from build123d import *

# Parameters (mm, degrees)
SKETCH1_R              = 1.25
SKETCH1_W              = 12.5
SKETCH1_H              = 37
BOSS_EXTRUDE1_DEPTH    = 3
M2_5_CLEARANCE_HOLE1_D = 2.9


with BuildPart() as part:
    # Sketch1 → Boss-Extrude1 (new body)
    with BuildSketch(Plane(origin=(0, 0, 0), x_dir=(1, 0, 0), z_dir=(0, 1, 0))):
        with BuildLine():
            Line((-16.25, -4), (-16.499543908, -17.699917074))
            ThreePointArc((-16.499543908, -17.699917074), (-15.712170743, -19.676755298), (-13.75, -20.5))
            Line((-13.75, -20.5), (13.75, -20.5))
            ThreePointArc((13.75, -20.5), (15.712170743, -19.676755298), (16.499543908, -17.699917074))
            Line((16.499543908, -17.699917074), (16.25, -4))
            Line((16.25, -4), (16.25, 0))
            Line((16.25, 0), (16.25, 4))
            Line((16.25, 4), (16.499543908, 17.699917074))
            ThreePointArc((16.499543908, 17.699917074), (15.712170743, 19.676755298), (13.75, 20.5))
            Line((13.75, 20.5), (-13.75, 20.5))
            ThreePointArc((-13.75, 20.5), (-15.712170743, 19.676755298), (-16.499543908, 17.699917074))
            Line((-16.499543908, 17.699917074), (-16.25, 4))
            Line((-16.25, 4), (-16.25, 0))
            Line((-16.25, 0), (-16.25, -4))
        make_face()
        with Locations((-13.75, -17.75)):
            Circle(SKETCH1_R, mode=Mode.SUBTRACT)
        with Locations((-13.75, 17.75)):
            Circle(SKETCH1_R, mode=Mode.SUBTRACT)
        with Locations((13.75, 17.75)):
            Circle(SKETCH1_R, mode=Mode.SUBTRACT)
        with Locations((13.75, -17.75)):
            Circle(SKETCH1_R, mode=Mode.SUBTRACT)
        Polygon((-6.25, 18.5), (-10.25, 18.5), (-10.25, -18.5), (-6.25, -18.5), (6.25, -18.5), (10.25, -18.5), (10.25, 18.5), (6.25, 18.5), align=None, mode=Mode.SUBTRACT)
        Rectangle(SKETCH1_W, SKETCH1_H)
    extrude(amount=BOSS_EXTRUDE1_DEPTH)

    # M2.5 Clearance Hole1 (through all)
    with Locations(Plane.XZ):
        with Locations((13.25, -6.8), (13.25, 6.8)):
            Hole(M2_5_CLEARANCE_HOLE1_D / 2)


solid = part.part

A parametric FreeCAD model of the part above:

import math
import FreeCAD as App
import Part
import Sketcher
Q = App.Units.Quantity


def add_polygon(sketch, points):
    """Adds a closed chain of lines whose ends are joined by coincident constraints."""
    first, n = sketch.GeometryCount, len(points)
    for a, b in zip(points, points[1:] + points[:1]):
        sketch.addGeometry(Part.LineSegment(App.Vector(*a, 0), App.Vector(*b, 0)), False)
    for i in range(n):
        sketch.addConstraint(Sketcher.Constraint("Coincident", first + i, 2, first + (i + 1) % n, 1))

doc = App.newDocument("Part")
body = doc.addObject("PartDesign::Body", "Body")

# Sketch on XZ plane
sketch1 = body.newObject("Sketcher::SketchObject", "Sketch")
sketch1.AttachmentSupport = (doc.getObject("XZ_Plane"), [""])
sketch1.MapMode = "FlatFace"
sketch1.addGeometry(Part.LineSegment(App.Vector(-16.2, 4, 0), App.Vector(-16.5, 17.7, 0)), False)  # 0
sketch1.addGeometry(Part.ArcOfCircle(Part.Circle(App.Vector(-13.8, 17.8, 0), App.Vector(0, 0, 1), 2.7), math.radians(90), math.radians(181)), False)  # 1
sketch1.addGeometry(Part.LineSegment(App.Vector(-13.8, 20.5, 0), App.Vector(13.8, 20.5, 0)), False)  # 2
sketch1.addGeometry(Part.ArcOfCircle(Part.Circle(App.Vector(13.8, 17.8, 0), App.Vector(0, 0, 1), 2.7), math.radians(-1), math.radians(90)), False)  # 3
sketch1.addGeometry(Part.LineSegment(App.Vector(16.5, 17.7, 0), App.Vector(16.2, 4, 0)), False)  # 4
sketch1.addGeometry(Part.LineSegment(App.Vector(16.2, 4, 0), App.Vector(16.2, -4, 0)), False)  # 5
sketch1.addGeometry(Part.LineSegment(App.Vector(16.2, -4, 0), App.Vector(16.5, -17.7, 0)), False)  # 6
sketch1.addGeometry(Part.ArcOfCircle(Part.Circle(App.Vector(13.8, -17.8, 0), App.Vector(0, 0, 1), 2.7), math.radians(-90), math.radians(1)), False)  # 7
sketch1.addGeometry(Part.LineSegment(App.Vector(13.8, -20.5, 0), App.Vector(-13.8, -20.5, 0)), False)  # 8
sketch1.addGeometry(Part.ArcOfCircle(Part.Circle(App.Vector(-13.8, -17.8, 0), App.Vector(0, 0, 1), 2.7), math.radians(179), math.radians(270)), False)  # 9
sketch1.addGeometry(Part.LineSegment(App.Vector(-16.5, -17.7, 0), App.Vector(-16.2, -4, 0)), False)  # 10
sketch1.addGeometry(Part.LineSegment(App.Vector(-16.2, -4, 0), App.Vector(-16.2, 4, 0)), False)  # 11
sketch1.addGeometry(Part.Circle(App.Vector(-13.8, 17.8, 0), App.Vector(0, 0, 1), 1.2), False)  # 12
sketch1.addGeometry(Part.Circle(App.Vector(13.8, 17.8, 0), App.Vector(0, 0, 1), 1.2), False)  # 13
sketch1.addGeometry(Part.Circle(App.Vector(-13.8, -17.8, 0), App.Vector(0, 0, 1), 1.2), False)  # 14
add_polygon(sketch1, [(-10.2, -18.5), (-6.2, -18.5), (-6.2, 18.5), (-10.2, 18.5)])  # lines 15-18
add_polygon(sketch1, [(6.2, -18.5), (10.2, -18.5), (10.2, 18.5), (6.2, 18.5)])  # lines 19-22
sketch1.addGeometry(Part.Circle(App.Vector(13.8, -17.8, 0), App.Vector(0, 0, 1), 1.2), False)  # 23
sketch1.addConstraint([
    Sketcher.Constraint("Tangent", 0, 2, 1, 2),
    Sketcher.Constraint("Tangent", 1, 1, 2, 1),
    Sketcher.Constraint("Tangent", 2, 2, 3, 2),
    Sketcher.Constraint("Tangent", 3, 1, 4, 1),
    Sketcher.Constraint("Coincident", 4, 2, 5, 1),
    Sketcher.Constraint("Coincident", 5, 2, 6, 1),
    Sketcher.Constraint("Tangent", 6, 2, 7, 2),
    Sketcher.Constraint("Tangent", 7, 1, 8, 1),
    Sketcher.Constraint("Tangent", 8, 2, 9, 2),
    Sketcher.Constraint("Tangent", 9, 1, 10, 1),
    Sketcher.Constraint("Coincident", 10, 2, 11, 1),
    Sketcher.Constraint("Coincident", 11, 2, 0, 1),
    Sketcher.Constraint("Horizontal", 2),
    Sketcher.Constraint("Vertical", 5),
    Sketcher.Constraint("Horizontal", 8),
    Sketcher.Constraint("Vertical", 11),
    Sketcher.Constraint("Horizontal", 15),
    Sketcher.Constraint("Vertical", 16),
    Sketcher.Constraint("Horizontal", 17),
    Sketcher.Constraint("Vertical", 18),
    Sketcher.Constraint("Horizontal", 19),
    Sketcher.Constraint("Vertical", 20),
    Sketcher.Constraint("Horizontal", 21),
    Sketcher.Constraint("Vertical", 22),
    Sketcher.Constraint("Coincident", 12, 3, 1, 3),
    Sketcher.Constraint("Coincident", 13, 3, 3, 3),
    Sketcher.Constraint("Coincident", 14, 3, 9, 3),
    Sketcher.Constraint("Coincident", 23, 3, 7, 3),
    Sketcher.Constraint("Equal", 1, 3),
    Sketcher.Constraint("Equal", 3, 7),
    Sketcher.Constraint("Equal", 7, 9),
    Sketcher.Constraint("Equal", 12, 13),
    Sketcher.Constraint("Equal", 13, 14),
    Sketcher.Constraint("Equal", 14, 23),
    Sketcher.Constraint("Symmetric", 1, 3, 7, 3, -1, 1),
    Sketcher.Constraint("Symmetric", 3, 1, 9, 1, -1, 1),
    Sketcher.Constraint("Symmetric", 5, 2, 11, 2, -1, 1),
    Sketcher.Constraint("Symmetric", 17, 2, 19, 2, -1, 1),
    Sketcher.Constraint("Symmetric", 15, 2, 21, 2, -1, 1),
    Sketcher.Constraint("Horizontal", 0, 2, 3, 1),
    Sketcher.Constraint("Horizontal", 5, 2, 10, 2),
    Sketcher.Constraint("Horizontal", 18, 2, 19, 2),
    Sketcher.Constraint("Diameter", 12, Q("2.5 mm")),
    Sketcher.Constraint("DistanceX", 15, 1, 15, 2, Q("4 mm")),
    Sketcher.Constraint("DistanceY", 5, 2, 5, 1, Q("8 mm")),
    Sketcher.Constraint("DistanceY", 16, 1, 16, 2, Q("37 mm")),
    Sketcher.Constraint("Radius", 1, Q("2.75 mm")),
    Sketcher.Constraint("DistanceX", 2, 1, 2, 2, Q("27.5 mm")),
    Sketcher.Constraint("DistanceY", 8, 2, 15, 2, Q("2 mm")),
    Sketcher.Constraint("DistanceX", 10, 2, 15, 2, Q("10 mm")),
    Sketcher.Constraint("DistanceX", 13, 3, 4, 2, Q("2.5 mm")),
])
pad1 = body.newObject("PartDesign::Pad", "Pad")
pad1.Profile = sketch1
pad1.Length = 3
pad1.Reversed = True

# Sketch on XZ plane
sketch2 = body.newObject("Sketcher::SketchObject", "Sketch001")
sketch2.AttachmentSupport = (doc.getObject("XZ_Plane"), [""])
sketch2.MapMode = "FlatFace"
sketch2.addGeometry([
    Part.Circle(App.Vector(13.2, -6.8, 0), App.Vector(0, 0, 1), 1.4),
    Part.Circle(App.Vector(13.2, 6.8, 0), App.Vector(0, 0, 1), 1.4),
], False)
sketch2.addConstraint([
    Sketcher.Constraint("Equal", 0, 1),
    Sketcher.Constraint("Symmetric", 0, 3, 1, 3, -1),
    Sketcher.Constraint("Diameter", 0, Q("2.9 mm")),
    Sketcher.Constraint("DistanceY", 0, 3, -1, 1, Q("6.8 mm")),
    Sketcher.Constraint("DistanceX", -1, 1, 0, 3, Q("13.25 mm")),
])
doc.recompute()
hole = body.newObject("PartDesign::Hole", "Hole")
hole.Profile = sketch2
hole.ThreadType = "None"
hole.Diameter = 2.9
hole.DepthType = "ThroughAll"

doc.recompute()
